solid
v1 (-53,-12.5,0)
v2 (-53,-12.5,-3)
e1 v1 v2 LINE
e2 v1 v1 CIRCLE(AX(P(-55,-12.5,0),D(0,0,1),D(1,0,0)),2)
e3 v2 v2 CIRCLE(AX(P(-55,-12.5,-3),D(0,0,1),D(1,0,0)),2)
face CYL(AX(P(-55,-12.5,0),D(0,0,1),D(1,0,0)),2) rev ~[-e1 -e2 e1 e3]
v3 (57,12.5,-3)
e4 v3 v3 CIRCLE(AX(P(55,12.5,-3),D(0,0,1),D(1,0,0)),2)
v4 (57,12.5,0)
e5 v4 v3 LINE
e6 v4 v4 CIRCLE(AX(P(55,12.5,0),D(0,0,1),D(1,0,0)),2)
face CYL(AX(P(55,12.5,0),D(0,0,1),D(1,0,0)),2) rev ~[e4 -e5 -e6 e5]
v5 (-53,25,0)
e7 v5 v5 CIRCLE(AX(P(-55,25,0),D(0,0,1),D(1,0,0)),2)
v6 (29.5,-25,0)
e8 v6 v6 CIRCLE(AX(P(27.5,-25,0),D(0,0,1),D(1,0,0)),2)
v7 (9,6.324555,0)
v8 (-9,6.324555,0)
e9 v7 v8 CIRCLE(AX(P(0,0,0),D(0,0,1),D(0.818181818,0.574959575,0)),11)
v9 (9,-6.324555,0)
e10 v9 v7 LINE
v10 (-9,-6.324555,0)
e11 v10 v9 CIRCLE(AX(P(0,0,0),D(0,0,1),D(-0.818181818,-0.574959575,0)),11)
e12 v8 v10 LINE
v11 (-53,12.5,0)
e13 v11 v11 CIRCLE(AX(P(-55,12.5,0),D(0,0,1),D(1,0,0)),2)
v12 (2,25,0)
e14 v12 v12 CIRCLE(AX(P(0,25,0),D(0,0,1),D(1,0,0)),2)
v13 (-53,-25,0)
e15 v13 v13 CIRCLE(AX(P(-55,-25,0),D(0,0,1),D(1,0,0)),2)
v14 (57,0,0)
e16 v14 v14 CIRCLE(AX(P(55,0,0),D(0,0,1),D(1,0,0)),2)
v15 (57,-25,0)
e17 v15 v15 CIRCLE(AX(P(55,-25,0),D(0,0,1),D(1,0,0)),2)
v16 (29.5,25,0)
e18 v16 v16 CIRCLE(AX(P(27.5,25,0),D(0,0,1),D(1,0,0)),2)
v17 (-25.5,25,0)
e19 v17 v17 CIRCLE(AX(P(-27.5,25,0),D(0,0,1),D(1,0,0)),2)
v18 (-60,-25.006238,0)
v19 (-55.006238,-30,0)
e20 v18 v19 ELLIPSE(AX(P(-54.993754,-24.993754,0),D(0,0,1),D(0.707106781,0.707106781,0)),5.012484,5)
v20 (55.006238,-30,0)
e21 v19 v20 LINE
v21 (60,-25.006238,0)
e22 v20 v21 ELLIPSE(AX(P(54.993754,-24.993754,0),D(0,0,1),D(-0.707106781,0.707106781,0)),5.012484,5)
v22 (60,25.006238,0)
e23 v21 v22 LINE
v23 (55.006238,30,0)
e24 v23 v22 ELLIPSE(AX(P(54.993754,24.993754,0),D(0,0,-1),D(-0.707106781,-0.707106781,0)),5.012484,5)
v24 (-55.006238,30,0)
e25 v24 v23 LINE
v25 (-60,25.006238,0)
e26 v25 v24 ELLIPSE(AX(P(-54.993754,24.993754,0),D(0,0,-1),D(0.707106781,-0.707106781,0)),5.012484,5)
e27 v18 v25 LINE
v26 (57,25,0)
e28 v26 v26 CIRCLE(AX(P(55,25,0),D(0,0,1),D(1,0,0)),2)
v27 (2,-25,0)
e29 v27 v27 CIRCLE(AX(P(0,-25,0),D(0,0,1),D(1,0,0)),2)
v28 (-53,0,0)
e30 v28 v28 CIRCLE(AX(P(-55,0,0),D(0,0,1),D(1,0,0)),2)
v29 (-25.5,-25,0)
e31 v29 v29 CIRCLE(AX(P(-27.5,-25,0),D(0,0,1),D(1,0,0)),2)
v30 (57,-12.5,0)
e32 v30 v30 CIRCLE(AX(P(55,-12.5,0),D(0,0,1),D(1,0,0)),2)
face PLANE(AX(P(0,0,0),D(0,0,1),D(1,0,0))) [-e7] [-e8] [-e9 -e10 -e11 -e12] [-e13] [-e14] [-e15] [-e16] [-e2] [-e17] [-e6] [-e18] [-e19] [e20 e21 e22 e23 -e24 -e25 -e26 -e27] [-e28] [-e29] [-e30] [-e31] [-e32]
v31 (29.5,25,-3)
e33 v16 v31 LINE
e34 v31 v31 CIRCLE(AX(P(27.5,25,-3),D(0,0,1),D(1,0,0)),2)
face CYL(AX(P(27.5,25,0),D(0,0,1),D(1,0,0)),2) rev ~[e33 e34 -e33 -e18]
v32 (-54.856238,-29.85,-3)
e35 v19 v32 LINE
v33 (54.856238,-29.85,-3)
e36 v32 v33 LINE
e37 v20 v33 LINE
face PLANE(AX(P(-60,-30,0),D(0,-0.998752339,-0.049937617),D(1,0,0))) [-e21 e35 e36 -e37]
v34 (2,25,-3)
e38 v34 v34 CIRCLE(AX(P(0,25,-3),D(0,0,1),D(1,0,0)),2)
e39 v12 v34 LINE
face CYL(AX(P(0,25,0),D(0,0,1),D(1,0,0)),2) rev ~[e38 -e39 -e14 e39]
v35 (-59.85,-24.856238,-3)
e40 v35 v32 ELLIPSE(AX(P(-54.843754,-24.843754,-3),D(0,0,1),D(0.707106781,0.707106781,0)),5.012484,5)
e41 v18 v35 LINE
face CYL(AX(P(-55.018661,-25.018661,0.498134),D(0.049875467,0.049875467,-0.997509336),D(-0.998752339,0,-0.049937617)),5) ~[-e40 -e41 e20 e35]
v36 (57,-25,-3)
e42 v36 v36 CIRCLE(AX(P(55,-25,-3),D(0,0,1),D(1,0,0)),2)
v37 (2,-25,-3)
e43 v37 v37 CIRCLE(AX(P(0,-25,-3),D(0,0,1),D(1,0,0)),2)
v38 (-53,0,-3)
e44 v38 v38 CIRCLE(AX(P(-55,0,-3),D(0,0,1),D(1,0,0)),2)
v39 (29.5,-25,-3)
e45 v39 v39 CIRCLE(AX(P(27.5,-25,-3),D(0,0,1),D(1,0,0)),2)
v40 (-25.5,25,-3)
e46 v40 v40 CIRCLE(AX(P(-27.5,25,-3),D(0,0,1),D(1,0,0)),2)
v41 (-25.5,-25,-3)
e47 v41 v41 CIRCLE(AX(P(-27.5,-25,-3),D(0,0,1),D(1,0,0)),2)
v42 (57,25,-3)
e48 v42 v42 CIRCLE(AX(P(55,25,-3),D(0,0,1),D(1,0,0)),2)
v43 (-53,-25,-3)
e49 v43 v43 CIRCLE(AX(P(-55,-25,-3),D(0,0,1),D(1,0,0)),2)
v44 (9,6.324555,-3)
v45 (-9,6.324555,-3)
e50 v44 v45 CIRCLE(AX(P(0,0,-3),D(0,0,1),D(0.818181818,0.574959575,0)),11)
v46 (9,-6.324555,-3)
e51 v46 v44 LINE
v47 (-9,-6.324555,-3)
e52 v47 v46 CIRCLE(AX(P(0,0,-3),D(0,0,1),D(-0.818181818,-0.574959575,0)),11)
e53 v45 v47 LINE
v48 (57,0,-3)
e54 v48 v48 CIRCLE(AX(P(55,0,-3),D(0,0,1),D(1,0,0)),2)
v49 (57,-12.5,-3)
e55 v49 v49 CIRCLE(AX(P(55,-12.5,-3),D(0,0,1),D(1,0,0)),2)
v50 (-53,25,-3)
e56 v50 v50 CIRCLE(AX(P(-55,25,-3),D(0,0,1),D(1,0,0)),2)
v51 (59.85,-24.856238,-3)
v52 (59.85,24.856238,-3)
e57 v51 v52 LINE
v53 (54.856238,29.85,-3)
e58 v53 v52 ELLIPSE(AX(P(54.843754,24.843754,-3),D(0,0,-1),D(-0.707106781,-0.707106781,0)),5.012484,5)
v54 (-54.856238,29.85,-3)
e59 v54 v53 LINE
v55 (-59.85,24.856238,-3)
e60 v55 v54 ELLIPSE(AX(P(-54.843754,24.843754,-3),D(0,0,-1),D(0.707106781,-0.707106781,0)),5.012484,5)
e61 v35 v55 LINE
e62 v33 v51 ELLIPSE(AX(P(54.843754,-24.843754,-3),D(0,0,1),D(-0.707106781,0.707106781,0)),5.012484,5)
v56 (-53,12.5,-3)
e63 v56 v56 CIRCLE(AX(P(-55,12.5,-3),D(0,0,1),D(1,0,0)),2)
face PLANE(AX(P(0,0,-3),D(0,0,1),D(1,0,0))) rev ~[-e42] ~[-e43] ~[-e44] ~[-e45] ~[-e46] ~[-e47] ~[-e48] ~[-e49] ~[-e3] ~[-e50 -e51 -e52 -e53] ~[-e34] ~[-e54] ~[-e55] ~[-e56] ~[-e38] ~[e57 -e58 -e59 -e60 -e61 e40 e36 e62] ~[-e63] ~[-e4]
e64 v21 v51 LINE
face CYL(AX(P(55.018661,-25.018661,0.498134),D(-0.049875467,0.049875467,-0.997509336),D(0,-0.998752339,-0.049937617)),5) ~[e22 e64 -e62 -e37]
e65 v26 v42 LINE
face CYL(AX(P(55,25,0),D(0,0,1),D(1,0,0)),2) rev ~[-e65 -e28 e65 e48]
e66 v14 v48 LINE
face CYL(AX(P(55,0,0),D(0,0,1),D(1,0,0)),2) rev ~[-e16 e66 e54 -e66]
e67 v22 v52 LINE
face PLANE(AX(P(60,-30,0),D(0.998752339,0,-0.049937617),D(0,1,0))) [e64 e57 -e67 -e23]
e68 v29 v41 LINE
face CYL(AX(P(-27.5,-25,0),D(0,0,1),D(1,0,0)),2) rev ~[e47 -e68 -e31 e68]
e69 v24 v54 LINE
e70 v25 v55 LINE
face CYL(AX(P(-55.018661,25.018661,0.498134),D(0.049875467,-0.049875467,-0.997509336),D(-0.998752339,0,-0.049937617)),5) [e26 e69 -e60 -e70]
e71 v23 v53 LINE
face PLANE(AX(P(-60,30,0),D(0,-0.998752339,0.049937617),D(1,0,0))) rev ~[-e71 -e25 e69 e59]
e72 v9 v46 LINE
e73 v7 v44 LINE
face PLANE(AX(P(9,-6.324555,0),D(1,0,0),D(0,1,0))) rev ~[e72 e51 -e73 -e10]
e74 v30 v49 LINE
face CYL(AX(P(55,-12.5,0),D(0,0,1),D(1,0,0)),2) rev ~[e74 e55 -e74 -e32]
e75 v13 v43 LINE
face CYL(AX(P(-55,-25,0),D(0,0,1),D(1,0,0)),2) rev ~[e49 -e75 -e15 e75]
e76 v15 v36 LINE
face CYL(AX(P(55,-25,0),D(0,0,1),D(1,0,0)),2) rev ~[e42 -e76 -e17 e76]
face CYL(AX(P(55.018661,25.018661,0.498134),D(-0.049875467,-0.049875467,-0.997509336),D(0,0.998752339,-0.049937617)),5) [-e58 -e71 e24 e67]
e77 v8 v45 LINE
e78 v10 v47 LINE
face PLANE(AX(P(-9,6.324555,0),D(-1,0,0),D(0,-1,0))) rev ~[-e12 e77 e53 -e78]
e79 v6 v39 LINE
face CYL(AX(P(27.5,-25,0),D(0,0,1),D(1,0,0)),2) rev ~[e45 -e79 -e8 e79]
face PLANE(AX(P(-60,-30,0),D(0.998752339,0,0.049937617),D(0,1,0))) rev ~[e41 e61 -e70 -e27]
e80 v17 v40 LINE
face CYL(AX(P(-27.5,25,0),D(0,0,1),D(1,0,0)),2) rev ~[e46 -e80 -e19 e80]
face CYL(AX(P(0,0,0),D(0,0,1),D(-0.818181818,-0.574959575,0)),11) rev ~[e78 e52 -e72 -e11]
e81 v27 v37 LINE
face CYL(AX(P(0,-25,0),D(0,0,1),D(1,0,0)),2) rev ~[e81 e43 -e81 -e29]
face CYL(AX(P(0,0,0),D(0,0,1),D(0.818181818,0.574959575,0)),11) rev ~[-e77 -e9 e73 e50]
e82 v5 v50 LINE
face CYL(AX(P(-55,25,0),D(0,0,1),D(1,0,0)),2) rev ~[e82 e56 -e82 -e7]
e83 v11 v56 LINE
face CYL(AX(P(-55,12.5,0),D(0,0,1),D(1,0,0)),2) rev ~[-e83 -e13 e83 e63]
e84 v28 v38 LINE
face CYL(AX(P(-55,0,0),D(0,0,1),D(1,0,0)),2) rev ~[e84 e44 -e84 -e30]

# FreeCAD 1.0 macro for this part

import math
import FreeCAD as App
import Part
import Sketcher
from FreeCAD import Vector


def edges_at(feature, points):
    """Names of the edges that pass closest to the given points."""
    edges = feature.Shape.Edges
    near = lambda p: min(range(len(edges)), key=lambda i: edges[i].distToShape(Part.Vertex(*p))[0])
    return sorted({f"Edge{near(p) + 1}" for p in points})


def faces_at(feature, points):
    """Names of the faces that lie closest to the given points."""
    faces = feature.Shape.Faces
    near = lambda p: min(range(len(faces)), key=lambda i: faces[i].distToShape(Part.Vertex(*p))[0])
    return sorted({f"Face{near(p) + 1}" for p in points})

doc = App.newDocument("Part")
body = doc.addObject("PartDesign::Body", "Body")

sketch1 = body.newObject("Sketcher::SketchObject", "Sketch")
sketch1.AttachmentSupport = (doc.getObject("XY_Plane"), [""])
sketch1.MapMode = "FlatFace"
sketch1.addGeometry([
    Part.LineSegment(Vector(-60, 30, 0), Vector(-60, -30, 0)),
    Part.LineSegment(Vector(-60, -30, 0), Vector(60, -30, 0)),
    Part.LineSegment(Vector(60, -30, 0), Vector(60, 30, 0)),
    Part.LineSegment(Vector(60, 30, 0), Vector(-60, 30, 0)),
], False)
sketch1.addConstraint([
    Sketcher.Constraint("Coincident", 0, 2, 1, 1),
    Sketcher.Constraint("Coincident", 1, 2, 2, 1),
    Sketcher.Constraint("Coincident", 2, 2, 3, 1),
    Sketcher.Constraint("Coincident", 3, 2, 0, 1),
    Sketcher.Constraint("Vertical", 0),
    Sketcher.Constraint("Horizontal", 1),
    Sketcher.Constraint("Vertical", 2),
    Sketcher.Constraint("Horizontal", 3),
    Sketcher.Constraint("Symmetric", 0, 2, 2, 2, -1, 1),
    Sketcher.Constraint("DistanceX", 1, 1, 1, 2, 120.0),
    Sketcher.Constraint("DistanceY", 0, 2, 0, 1, 60.0),
])
pad1 = body.newObject("PartDesign::Pad", "Pad")
pad1.Profile = sketch1
pad1.Length = 3
pad1.Reversed = True
doc.recompute()

draft = body.newObject("PartDesign::Draft", "Draft")
draft.Base = (pad1, faces_at(pad1, [
    (0, -30, -1.5),
    (60, 0, -1.5),
    (0, 30, -1.5),
    (-60, 0, -1.5),
]))
draft.NeutralPlane = (doc.getObject("XY_Plane"), [""])
draft.Angle = 2.862405
draft.Reversed = True

sketch2 = body.newObject("Sketcher::SketchObject", "Sketch001")
sketch2.AttachmentSupport = (doc.getObject("XY_Plane"), [""])
sketch2.MapMode = "FlatFace"
sketch2.addGeometry([
    Part.LineSegment(Vector(-9, 6, 0), Vector(-9, -6, 0)),
    Part.ArcOfCircle(Part.Circle(Vector(0, 0, 0), Vector(0, 0, 1), 11), math.radians(-145), math.radians(-35)),
    Part.LineSegment(Vector(9, -6, 0), Vector(9, 6, 0)),
    Part.ArcOfCircle(Part.Circle(Vector(0, 0, 0), Vector(0, 0, 1), 11), math.radians(35), math.radians(145)),
], False)
sketch2.addConstraint([
    Sketcher.Constraint("Coincident", 0, 2, 1, 1),
    Sketcher.Constraint("Coincident", 1, 2, 2, 1),
    Sketcher.Constraint("Coincident", 2, 2, 3, 1),
    Sketcher.Constraint("Coincident", 3, 2, 0, 1),
    Sketcher.Constraint("Vertical", 0),
    Sketcher.Constraint("Vertical", 2),
    Sketcher.Constraint("Coincident", 1, 3, -1, 1),
    Sketcher.Constraint("Coincident", 3, 3, -1, 1),
    Sketcher.Constraint("Equal", 1, 3),
    Sketcher.Constraint("Horizontal", 0, 2, 1, 2),
    Sketcher.Constraint("Radius", 1, 11.0),
    Sketcher.Constraint("DistanceX", 0, 2, -1, 1, 9.0),
])
pocket1 = body.newObject("PartDesign::Pocket", "Pocket")
pocket1.Profile = sketch2
pocket1.Length = 25
doc.recompute()

fillet = body.newObject("PartDesign::Fillet", "Fillet")
fillet.Base = (pocket1, edges_at(pocket1, [
    (59.925, -29.925, -1.5),
    (-59.925, -29.925, -1.5),
    (-59.925, 29.925, -1.5),
    (59.925, 29.925, -1.5),
]))
fillet.Radius = 5

sketch3 = body.newObject("Sketcher::SketchObject", "Sketch002")
sketch3.AttachmentSupport = (doc.getObject("XY_Plane"), [""])
sketch3.MapMode = "FlatFace"
sketch3.addGeometry(Part.Circle(Vector(-55, 25, 0), Vector(0, 0, 1), 2), False)
sketch3.addConstraint([
    Sketcher.Constraint("Diameter", 0, 4.0),
    Sketcher.Constraint("DistanceX", 0, 3, -1, 1, 55.0),
    Sketcher.Constraint("DistanceY", -1, 1, 0, 3, 25.0),
])
pocket2 = body.newObject("PartDesign::Pocket", "Pocket001")
pocket2.Profile = sketch3
pocket2.Type = "UpToFirst"

sketch4 = body.newObject("Sketcher::SketchObject", "Sketch003")
sketch4.AttachmentSupport = (doc.getObject("XY_Plane"), [""])
sketch4.MapMode = "FlatFace"
sketch4.addGeometry(Part.Circle(Vector(-27.5, 25, 0), Vector(0, 0, 1), 2), False)
sketch4.addConstraint([
    Sketcher.Constraint("Diameter", 0, 4.0),
    Sketcher.Constraint("DistanceY", -1, 1, 0, 3, 25.0),
    Sketcher.Constraint("DistanceX", 0, 3, -1, 1, 27.5),
])
pocket3 = body.newObject("PartDesign::Pocket", "Pocket002")
pocket3.Profile = sketch4
pocket3.Type = "UpToFirst"

sketch5 = body.newObject("Sketcher::SketchObject", "Sketch004")
sketch5.AttachmentSupport = (doc.getObject("XY_Plane"), [""])
sketch5.MapMode = "FlatFace"
sketch5.addGeometry(Part.Circle(Vector(0, 25, 0), Vector(0, 0, 1), 2), False)
sketch5.addConstraint([
    Sketcher.Constraint("PointOnObject", 0, 3, -2),
    Sketcher.Constraint("Diameter", 0, 4.0),
    Sketcher.Constraint("DistanceY", -1, 1, 0, 3, 25.0),
])
pocket4 = body.newObject("PartDesign::Pocket", "Pocket003")
pocket4.Profile = sketch5
pocket4.Type = "UpToFirst"

sketch6 = body.newObject("Sketcher::SketchObject", "Sketch005")
sketch6.AttachmentSupport = (doc.getObject("XY_Plane"), [""])
sketch6.MapMode = "FlatFace"
sketch6.addGeometry(Part.Circle(Vector(27.5, 25, 0), Vector(0, 0, 1), 2), False)
sketch6.addConstraint([
    Sketcher.Constraint("Diameter", 0, 4.0),
    Sketcher.Constraint("DistanceY", -1, 1, 0, 3, 25.0),
    Sketcher.Constraint("DistanceX", -1, 1, 0, 3, 27.5),
])
pocket5 = body.newObject("PartDesign::Pocket", "Pocket004")
pocket5.Profile = sketch6
pocket5.Type = "UpToFirst"

sketch7 = body.newObject("Sketcher::SketchObject", "Sketch006")
sketch7.AttachmentSupport = (doc.getObject("XY_Plane"), [""])
sketch7.MapMode = "FlatFace"
sketch7.addGeometry(Part.Circle(Vector(55, 25, 0), Vector(0, 0, 1), 2), False)
sketch7.addConstraint([
    Sketcher.Constraint("Diameter", 0, 4.0),
    Sketcher.Constraint("DistanceX", -1, 1, 0, 3, 55.0),
    Sketcher.Constraint("DistanceY", -1, 1, 0, 3, 25.0),
])
pocket6 = body.newObject("PartDesign::Pocket", "Pocket005")
pocket6.Profile = sketch7
pocket6.Type = "UpToFirst"

sketch8 = body.newObject("Sketcher::SketchObject", "Sketch007")
sketch8.AttachmentSupport = (doc.getObject("XY_Plane"), [""])
sketch8.MapMode = "FlatFace"
sketch8.addGeometry(Part.Circle(Vector(55, -25, 0), Vector(0, 0, 1), 2), False)
sketch8.addConstraint([
    Sketcher.Constraint("Diameter", 0, 4.0),
    Sketcher.Constraint("DistanceX", -1, 1, 0, 3, 55.0),
    Sketcher.Constraint("DistanceY", 0, 3, -1, 1, 25.0),
])
pocket7 = body.newObject("PartDesign::Pocket", "Pocket006")
pocket7.Profile = sketch8
pocket7.Type = "UpToFirst"

sketch9 = body.newObject("Sketcher::SketchObject", "Sketch008")
sketch9.AttachmentSupport = (doc.getObject("XY_Plane"), [""])
sketch9.MapMode = "FlatFace"
sketch9.addGeometry(Part.Circle(Vector(27.5, -25, 0), Vector(0, 0, 1), 2), False)
sketch9.addConstraint([
    Sketcher.Constraint("Diameter", 0, 4.0),
    Sketcher.Constraint("DistanceY", 0, 3, -1, 1, 25.0),
    Sketcher.Constraint("DistanceX", -1, 1, 0, 3, 27.5),
])
pocket8 = body.newObject("PartDesign::Pocket", "Pocket007")
pocket8.Profile = sketch9
pocket8.Type = "UpToFirst"

sketch10 = body.newObject("Sketcher::SketchObject", "Sketch009")
sketch10.AttachmentSupport = (doc.getObject("XY_Plane"), [""])
sketch10.MapMode = "FlatFace"
sketch10.addGeometry(Part.Circle(Vector(0, -25, 0), Vector(0, 0, 1), 2), False)
sketch10.addConstraint([
    Sketcher.Constraint("PointOnObject", 0, 3, -2),
    Sketcher.Constraint("Diameter", 0, 4.0),
    Sketcher.Constraint("DistanceY", 0, 3, -1, 1, 25.0),
])
pocket9 = body.newObject("PartDesign::Pocket", "Pocket008")
pocket9.Profile = sketch10
pocket9.Type = "UpToFirst"

sketch11 = body.newObject("Sketcher::SketchObject", "Sketch010")
sketch11.AttachmentSupport = (doc.getObject("XY_Plane"), [""])
sketch11.MapMode = "FlatFace"
sketch11.addGeometry(Part.Circle(Vector(-27.5, -25, 0), Vector(0, 0, 1), 2), False)
sketch11.addConstraint([
    Sketcher.Constraint("Diameter", 0, 4.0),
    Sketcher.Constraint("DistanceY", 0, 3, -1, 1, 25.0),
    Sketcher.Constraint("DistanceX", 0, 3, -1, 1, 27.5),
])
pocket10 = body.newObject("PartDesign::Pocket", "Pocket009")
pocket10.Profile = sketch11
pocket10.Type = "UpToFirst"

sketch12 = body.newObject("Sketcher::SketchObject", "Sketch011")
sketch12.AttachmentSupport = (doc.getObject("XY_Plane"), [""])
sketch12.MapMode = "FlatFace"
sketch12.addGeometry(Part.Circle(Vector(-55, -25, 0), Vector(0, 0, 1), 2), False)
sketch12.addConstraint([
    Sketcher.Constraint("Diameter", 0, 4.0),
    Sketcher.Constraint("DistanceX", 0, 3, -1, 1, 55.0),
    Sketcher.Constraint("DistanceY", 0, 3, -1, 1, 25.0),
])
pocket11 = body.newObject("PartDesign::Pocket", "Pocket010")
pocket11.Profile = sketch12
pocket11.Type = "UpToFirst"

sketch13 = body.newObject("Sketcher::SketchObject", "Sketch012")
sketch13.AttachmentSupport = (doc.getObject("XY_Plane"), [""])
sketch13.MapMode = "FlatFace"
sketch13.addGeometry(Part.Circle(Vector(-55, 12.5, 0), Vector(0, 0, 1), 2), False)
sketch13.addConstraint([
    Sketcher.Constraint("Diameter", 0, 4.0),
    Sketcher.Constraint("DistanceX", 0, 3, -1, 1, 55.0),
    Sketcher.Constraint("DistanceY", -1, 1, 0, 3, 12.5),
])
pocket12 = body.newObject("PartDesign::Pocket", "Pocket011")
pocket12.Profile = sketch13
pocket12.Type = "UpToFirst"

sketch14 = body.newObject("Sketcher::SketchObject", "Sketch013")
sketch14.AttachmentSupport = (doc.getObject("XY_Plane"), [""])
sketch14.MapMode = "FlatFace"
sketch14.addGeometry(Part.Circle(Vector(-55, 0, 0), Vector(0, 0, 1), 2), False)
sketch14.addConstraint([
    Sketcher.Constraint("PointOnObject", 0, 3, -1),
    Sketcher.Constraint("Diameter", 0, 4.0),
    Sketcher.Constraint("DistanceX", 0, 3, -1, 1, 55.0),
])
pocket13 = body.newObject("PartDesign::Pocket", "Pocket012")
pocket13.Profile = sketch14
pocket13.Type = "UpToFirst"

sketch15 = body.newObject("Sketcher::SketchObject", "Sketch014")
sketch15.AttachmentSupport = (doc.getObject("XY_Plane"), [""])
sketch15.MapMode = "FlatFace"
sketch15.addGeometry(Part.Circle(Vector(-55, -12.5, 0), Vector(0, 0, 1), 2), False)
sketch15.addConstraint([
    Sketcher.Constraint("Diameter", 0, 4.0),
    Sketcher.Constraint("DistanceX", 0, 3, -1, 1, 55.0),
    Sketcher.Constraint("DistanceY", 0, 3, -1, 1, 12.5),
])
pocket14 = body.newObject("PartDesign::Pocket", "Pocket013")
pocket14.Profile = sketch15
pocket14.Type = "UpToFirst"

sketch16 = body.newObject("Sketcher::SketchObject", "Sketch015")
sketch16.AttachmentSupport = (doc.getObject("XY_Plane"), [""])
sketch16.MapMode = "FlatFace"
sketch16.addGeometry(Part.Circle(Vector(55, -12.5, 0), Vector(0, 0, 1), 2), False)
sketch16.addConstraint([
    Sketcher.Constraint("Diameter", 0, 4.0),
    Sketcher.Constraint("DistanceX", -1, 1, 0, 3, 55.0),
    Sketcher.Constraint("DistanceY", 0, 3, -1, 1, 12.5),
])
pocket15 = body.newObject("PartDesign::Pocket", "Pocket014")
pocket15.Profile = sketch16
pocket15.Type = "UpToFirst"

sketch17 = body.newObject("Sketcher::SketchObject", "Sketch016")
sketch17.AttachmentSupport = (doc.getObject("XY_Plane"), [""])
sketch17.MapMode = "FlatFace"
sketch17.addGeometry(Part.Circle(Vector(55, 0, 0), Vector(0, 0, 1), 2), False)
sketch17.addConstraint([
    Sketcher.Constraint("PointOnObject", 0, 3, -1),
    Sketcher.Constraint("Diameter", 0, 4.0),
    Sketcher.Constraint("DistanceX", -1, 1, 0, 3, 55.0),
])
pocket16 = body.newObject("PartDesign::Pocket", "Pocket015")
pocket16.Profile = sketch17
pocket16.Type = "UpToFirst"

sketch18 = body.newObject("Sketcher::SketchObject", "Sketch017")
sketch18.AttachmentSupport = (doc.getObject("XY_Plane"), [""])
sketch18.MapMode = "FlatFace"
sketch18.addGeometry(Part.Circle(Vector(55, 12.5, 0), Vector(0, 0, 1), 2), False)
sketch18.addConstraint([
    Sketcher.Constraint("Diameter", 0, 4.0),
    Sketcher.Constraint("DistanceX", -1, 1, 0, 3, 55.0),
    Sketcher.Constraint("DistanceY", -1, 1, 0, 3, 12.5),
])
pocket17 = body.newObject("PartDesign::Pocket", "Pocket016")
pocket17.Profile = sketch18
pocket17.Type = "UpToFirst"

doc.recompute()
